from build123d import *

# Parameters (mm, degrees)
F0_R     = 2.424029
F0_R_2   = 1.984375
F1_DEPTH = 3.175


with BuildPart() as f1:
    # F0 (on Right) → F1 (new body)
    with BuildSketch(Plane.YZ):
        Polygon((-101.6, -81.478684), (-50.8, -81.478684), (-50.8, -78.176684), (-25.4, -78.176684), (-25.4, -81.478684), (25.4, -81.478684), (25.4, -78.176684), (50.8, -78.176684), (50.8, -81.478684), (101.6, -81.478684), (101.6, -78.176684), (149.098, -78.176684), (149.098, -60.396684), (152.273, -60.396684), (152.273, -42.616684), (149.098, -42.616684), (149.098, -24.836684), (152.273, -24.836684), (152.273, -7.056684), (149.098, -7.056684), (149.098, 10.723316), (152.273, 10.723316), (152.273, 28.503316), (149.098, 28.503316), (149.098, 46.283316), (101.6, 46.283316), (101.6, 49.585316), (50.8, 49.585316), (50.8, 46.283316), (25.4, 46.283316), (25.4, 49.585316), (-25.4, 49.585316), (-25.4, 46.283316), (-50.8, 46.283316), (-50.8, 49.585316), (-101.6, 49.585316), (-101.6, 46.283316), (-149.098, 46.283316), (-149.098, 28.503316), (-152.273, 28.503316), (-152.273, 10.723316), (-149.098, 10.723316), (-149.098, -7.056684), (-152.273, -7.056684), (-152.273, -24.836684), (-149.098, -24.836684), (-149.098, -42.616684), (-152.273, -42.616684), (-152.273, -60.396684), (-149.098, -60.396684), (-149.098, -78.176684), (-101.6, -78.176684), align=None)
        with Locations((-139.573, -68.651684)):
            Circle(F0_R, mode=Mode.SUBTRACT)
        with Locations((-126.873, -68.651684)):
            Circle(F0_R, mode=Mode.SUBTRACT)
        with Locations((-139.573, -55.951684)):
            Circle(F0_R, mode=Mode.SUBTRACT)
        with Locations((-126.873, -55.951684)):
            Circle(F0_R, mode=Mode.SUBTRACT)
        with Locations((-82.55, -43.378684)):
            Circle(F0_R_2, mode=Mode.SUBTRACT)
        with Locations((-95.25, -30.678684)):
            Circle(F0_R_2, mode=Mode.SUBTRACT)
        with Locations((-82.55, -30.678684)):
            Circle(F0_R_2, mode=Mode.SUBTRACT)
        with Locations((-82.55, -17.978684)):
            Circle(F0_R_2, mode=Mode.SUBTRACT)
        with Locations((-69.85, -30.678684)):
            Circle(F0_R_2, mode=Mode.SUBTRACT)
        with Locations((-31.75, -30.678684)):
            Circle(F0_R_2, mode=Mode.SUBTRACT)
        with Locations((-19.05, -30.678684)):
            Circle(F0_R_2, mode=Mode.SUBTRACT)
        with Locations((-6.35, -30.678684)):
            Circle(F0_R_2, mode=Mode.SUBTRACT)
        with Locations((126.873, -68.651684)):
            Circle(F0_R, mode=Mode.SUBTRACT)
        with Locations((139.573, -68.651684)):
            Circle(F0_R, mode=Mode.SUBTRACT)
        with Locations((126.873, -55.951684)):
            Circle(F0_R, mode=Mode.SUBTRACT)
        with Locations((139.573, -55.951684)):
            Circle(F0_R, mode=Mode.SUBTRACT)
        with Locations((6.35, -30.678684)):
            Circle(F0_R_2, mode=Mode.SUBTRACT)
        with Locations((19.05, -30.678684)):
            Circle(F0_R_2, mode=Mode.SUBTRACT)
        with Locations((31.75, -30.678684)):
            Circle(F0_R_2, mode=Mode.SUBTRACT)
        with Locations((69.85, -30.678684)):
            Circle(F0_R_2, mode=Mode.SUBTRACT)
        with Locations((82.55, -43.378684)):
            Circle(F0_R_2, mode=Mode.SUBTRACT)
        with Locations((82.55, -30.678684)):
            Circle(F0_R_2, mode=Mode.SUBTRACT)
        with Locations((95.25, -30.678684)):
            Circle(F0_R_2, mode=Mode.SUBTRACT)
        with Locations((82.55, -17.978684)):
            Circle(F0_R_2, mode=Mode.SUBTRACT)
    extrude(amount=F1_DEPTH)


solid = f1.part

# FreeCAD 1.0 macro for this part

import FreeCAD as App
import Part
import Sketcher

V = App.Vector
Q = App.Units.Quantity

doc = App.newDocument("Part")
body = doc.addObject("PartDesign::Body", "Body")

sketch1 = body.newObject("Sketcher::SketchObject", "Sketch")
sketch1.AttachmentSupport = (doc.getObject("YZ_Plane"), [""])
sketch1.MapMode = "FlatFace"
sketch1.addGeometry([
    Part.LineSegment(V(-101.6, -81.5, 0), V(-50.8, -81.5, 0)),
    Part.LineSegment(V(-50.8, -81.5, 0), V(-50.8, -78.2, 0)),
    Part.LineSegment(V(-50.8, -78.2, 0), V(-25.4, -78.2, 0)),
    Part.LineSegment(V(-25.4, -78.2, 0), V(-25.4, -81.5, 0)),
    Part.LineSegment(V(-25.4, -81.5, 0), V(25.4, -81.5, 0)),
    Part.LineSegment(V(25.4, -81.5, 0), V(25.4, -78.2, 0)),
    Part.LineSegment(V(25.4, -78.2, 0), V(50.8, -78.2, 0)),
    Part.LineSegment(V(50.8, -78.2, 0), V(50.8, -81.5, 0)),
    Part.LineSegment(V(50.8, -81.5, 0), V(101.6, -81.5, 0)),
    Part.LineSegment(V(101.6, -81.5, 0), V(101.6, -78.2, 0)),
    Part.LineSegment(V(101.6, -78.2, 0), V(149.1, -78.2, 0)),
    Part.LineSegment(V(149.1, -78.2, 0), V(149.1, -60.4, 0)),
    Part.LineSegment(V(149.1, -60.4, 0), V(152.3, -60.4, 0)),
    Part.LineSegment(V(152.3, -60.4, 0), V(152.3, -42.6, 0)),
    Part.LineSegment(V(152.3, -42.6, 0), V(149.1, -42.6, 0)),
    Part.LineSegment(V(149.1, -42.6, 0), V(149.1, -24.8, 0)),
    Part.LineSegment(V(149.1, -24.8, 0), V(152.3, -24.8, 0)),
    Part.LineSegment(V(152.3, -24.8, 0), V(152.3, -7.1, 0)),
    Part.LineSegment(V(152.3, -7.1, 0), V(149.1, -7.1, 0)),
    Part.LineSegment(V(149.1, -7.1, 0), V(149.1, 10.7, 0)),
    Part.LineSegment(V(149.1, 10.7, 0), V(152.3, 10.7, 0)),
    Part.LineSegment(V(152.3, 10.7, 0), V(152.3, 28.5, 0)),
    Part.LineSegment(V(152.3, 28.5, 0), V(149.1, 28.5, 0)),
    Part.LineSegment(V(149.1, 28.5, 0), V(149.1, 46.3, 0)),
    Part.LineSegment(V(149.1, 46.3, 0), V(101.6, 46.3, 0)),
    Part.LineSegment(V(101.6, 46.3, 0), V(101.6, 49.6, 0)),
    Part.LineSegment(V(101.6, 49.6, 0), V(50.8, 49.6, 0)),
    Part.LineSegment(V(50.8, 49.6, 0), V(50.8, 46.3, 0)),
    Part.LineSegment(V(50.8, 46.3, 0), V(25.4, 46.3, 0)),
    Part.LineSegment(V(25.4, 46.3, 0), V(25.4, 49.6, 0)),
    Part.LineSegment(V(25.4, 49.6, 0), V(-25.4, 49.6, 0)),
    Part.LineSegment(V(-25.4, 49.6, 0), V(-25.4, 46.3, 0)),
    Part.LineSegment(V(-25.4, 46.3, 0), V(-50.8, 46.3, 0)),
    Part.LineSegment(V(-50.8, 46.3, 0), V(-50.8, 49.6, 0)),
    Part.LineSegment(V(-50.8, 49.6, 0), V(-101.6, 49.6, 0)),
    Part.LineSegment(V(-101.6, 49.6, 0), V(-101.6, 46.3, 0)),
    Part.LineSegment(V(-101.6, 46.3, 0), V(-149.1, 46.3, 0)),
    Part.LineSegment(V(-149.1, 46.3, 0), V(-149.1, 28.5, 0)),
    Part.LineSegment(V(-149.1, 28.5, 0), V(-152.3, 28.5, 0)),
    Part.LineSegment(V(-152.3, 28.5, 0), V(-152.3, 10.7, 0)),
    Part.LineSegment(V(-152.3, 10.7, 0), V(-149.1, 10.7, 0)),
    Part.LineSegment(V(-149.1, 10.7, 0), V(-149.1, -7.1, 0)),
    Part.LineSegment(V(-149.1, -7.1, 0), V(-152.3, -7.1, 0)),
    Part.LineSegment(V(-152.3, -7.1, 0), V(-152.3, -24.8, 0)),
    Part.LineSegment(V(-152.3, -24.8, 0), V(-149.1, -24.8, 0)),
    Part.LineSegment(V(-149.1, -24.8, 0), V(-149.1, -42.6, 0)),
    Part.LineSegment(V(-149.1, -42.6, 0), V(-152.3, -42.6, 0)),
    Part.LineSegment(V(-152.3, -42.6, 0), V(-152.3, -60.4, 0)),
    Part.LineSegment(V(-152.3, -60.4, 0), V(-149.1, -60.4, 0)),
    Part.LineSegment(V(-149.1, -60.4, 0), V(-149.1, -78.2, 0)),
    Part.LineSegment(V(-149.1, -78.2, 0), V(-101.6, -78.2, 0)),
    Part.LineSegment(V(-101.6, -78.2, 0), V(-101.6, -81.5, 0)),
    Part.Circle(V(-139.6, -68.7, 0), V(0, 0, 1), 2.4),
    Part.Circle(V(-126.9, -68.7, 0), V(0, 0, 1), 2.4),
    Part.Circle(V(-139.6, -56, 0), V(0, 0, 1), 2.4),
    Part.Circle(V(-126.9, -56, 0), V(0, 0, 1), 2.4),
    Part.Circle(V(126.9, -68.7, 0), V(0, 0, 1), 2.4),
    Part.Circle(V(139.6, -68.7, 0), V(0, 0, 1), 2.4),
    Part.Circle(V(126.9, -56, 0), V(0, 0, 1), 2.4),
    Part.Circle(V(139.6, -56, 0), V(0, 0, 1), 2.4),
    Part.Circle(V(-82.5, -43.4, 0), V(0, 0, 1), 2),
    Part.Circle(V(-95.2, -30.7, 0), V(0, 0, 1), 2),
    Part.Circle(V(-82.5, -30.7, 0), V(0, 0, 1), 2),
    Part.Circle(V(-69.8, -30.7, 0), V(0, 0, 1), 2),
    Part.Circle(V(-31.8, -30.7, 0), V(0, 0, 1), 2),
    Part.Circle(V(-19.1, -30.7, 0), V(0, 0, 1), 2),
    Part.Circle(V(-6.3, -30.7, 0), V(0, 0, 1), 2),
    Part.Circle(V(-82.5, -18, 0), V(0, 0, 1), 2),
    Part.Circle(V(6.3, -30.7, 0), V(0, 0, 1), 2),
    Part.Circle(V(19.1, -30.7, 0), V(0, 0, 1), 2),
    Part.Circle(V(31.8, -30.7, 0), V(0, 0, 1), 2),
    Part.Circle(V(69.8, -30.7, 0), V(0, 0, 1), 2),
    Part.Circle(V(82.5, -43.4, 0), V(0, 0, 1), 2),
    Part.Circle(V(82.5, -30.7, 0), V(0, 0, 1), 2),
    Part.Circle(V(95.2, -30.7, 0), V(0, 0, 1), 2),
    Part.Circle(V(82.5, -18, 0), V(0, 0, 1), 2),
], False)
sketch1.addConstraint([
    Sketcher.Constraint("Coincident", 0, 2, 1, 1),
    Sketcher.Constraint("Coincident", 1, 2, 2, 1),
    Sketcher.Constraint("Coincident", 2, 2, 3, 1),
    Sketcher.Constraint("Coincident", 3, 2, 4, 1),
    Sketcher.Constraint("Coincident", 4, 2, 5, 1),
    Sketcher.Constraint("Coincident", 5, 2, 6, 1),
    Sketcher.Constraint("Coincident", 6, 2, 7, 1),
    Sketcher.Constraint("Coincident", 7, 2, 8, 1),
    Sketcher.Constraint("Coincident", 8, 2, 9, 1),
    Sketcher.Constraint("Coincident", 9, 2, 10, 1),
    Sketcher.Constraint("Coincident", 10, 2, 11, 1),
    Sketcher.Constraint("Coincident", 11, 2, 12, 1),
    Sketcher.Constraint("Coincident", 12, 2, 13, 1),
    Sketcher.Constraint("Coincident", 13, 2, 14, 1),
    Sketcher.Constraint("Coincident", 14, 2, 15, 1),
    Sketcher.Constraint("Coincident", 15, 2, 16, 1),
    Sketcher.Constraint("Coincident", 16, 2, 17, 1),
    Sketcher.Constraint("Coincident", 17, 2, 18, 1),
    Sketcher.Constraint("Coincident", 18, 2, 19, 1),
    Sketcher.Constraint("Coincident", 19, 2, 20, 1),
    Sketcher.Constraint("Coincident", 20, 2, 21, 1),
    Sketcher.Constraint("Coincident", 21, 2, 22, 1),
    Sketcher.Constraint("Coincident", 22, 2, 23, 1),
    Sketcher.Constraint("Coincident", 23, 2, 24, 1),
    Sketcher.Constraint("Coincident", 24, 2, 25, 1),
    Sketcher.Constraint("Coincident", 25, 2, 26, 1),
    Sketcher.Constraint("Coincident", 26, 2, 27, 1),
    Sketcher.Constraint("Coincident", 27, 2, 28, 1),
    Sketcher.Constraint("Coincident", 28, 2, 29, 1),
    Sketcher.Constraint("Coincident", 29, 2, 30, 1),
    Sketcher.Constraint("Coincident", 30, 2, 31, 1),
    Sketcher.Constraint("Coincident", 31, 2, 32, 1),
    Sketcher.Constraint("Coincident", 32, 2, 33, 1),
    Sketcher.Constraint("Coincident", 33, 2, 34, 1),
    Sketcher.Constraint("Coincident", 34, 2, 35, 1),
    Sketcher.Constraint("Coincident", 35, 2, 36, 1),
    Sketcher.Constraint("Coincident", 36, 2, 37, 1),
    Sketcher.Constraint("Coincident", 37, 2, 38, 1),
    Sketcher.Constraint("Coincident", 38, 2, 39, 1),
    Sketcher.Constraint("Coincident", 39, 2, 40, 1),
    Sketcher.Constraint("Coincident", 40, 2, 41, 1),
    Sketcher.Constraint("Coincident", 41, 2, 42, 1),
    Sketcher.Constraint("Coincident", 42, 2, 43, 1),
    Sketcher.Constraint("Coincident", 43, 2, 44, 1),
    Sketcher.Constraint("Coincident", 44, 2, 45, 1),
    Sketcher.Constraint("Coincident", 45, 2, 46, 1),
    Sketcher.Constraint("Coincident", 46, 2, 47, 1),
    Sketcher.Constraint("Coincident", 47, 2, 48, 1),
    Sketcher.Constraint("Coincident", 48, 2, 49, 1),
    Sketcher.Constraint("Coincident", 49, 2, 50, 1),
    Sketcher.Constraint("Coincident", 50, 2, 51, 1),
    Sketcher.Constraint("Coincident", 51, 2, 0, 1),
    Sketcher.Constraint("Horizontal", 0),
    Sketcher.Constraint("Vertical", 1),
    Sketcher.Constraint("Horizontal", 2),
    Sketcher.Constraint("Vertical", 3),
    Sketcher.Constraint("Horizontal", 4),
    Sketcher.Constraint("Vertical", 5),
    Sketcher.Constraint("Horizontal", 6),
    Sketcher.Constraint("Vertical", 7),
    Sketcher.Constraint("Horizontal", 8),
    Sketcher.Constraint("Vertical", 9),
    Sketcher.Constraint("Horizontal", 10),
    Sketcher.Constraint("Vertical", 11),
    Sketcher.Constraint("Horizontal", 12),
    Sketcher.Constraint("Vertical", 13),
    Sketcher.Constraint("Horizontal", 14),
    Sketcher.Constraint("Vertical", 15),
    Sketcher.Constraint("Horizontal", 16),
    Sketcher.Constraint("Vertical", 17),
    Sketcher.Constraint("Horizontal", 18),
    Sketcher.Constraint("Vertical", 19),
    Sketcher.Constraint("Horizontal", 20),
    Sketcher.Constraint("Vertical", 21),
    Sketcher.Constraint("Horizontal", 22),
    Sketcher.Constraint("Vertical", 23),
    Sketcher.Constraint("Horizontal", 24),
    Sketcher.Constraint("Vertical", 25),
    Sketcher.Constraint("Horizontal", 26),
    Sketcher.Constraint("Vertical", 27),
    Sketcher.Constraint("Horizontal", 28),
    Sketcher.Constraint("Vertical", 29),
    Sketcher.Constraint("Horizontal", 30),
    Sketcher.Constraint("Vertical", 31),
    Sketcher.Constraint("Horizontal", 32),
    Sketcher.Constraint("Vertical", 33),
    Sketcher.Constraint("Horizontal", 34),
    Sketcher.Constraint("Vertical", 35),
    Sketcher.Constraint("Horizontal", 36),
    Sketcher.Constraint("Vertical", 37),
    Sketcher.Constraint("Horizontal", 38),
    Sketcher.Constraint("Vertical", 39),
    Sketcher.Constraint("Horizontal", 40),
    Sketcher.Constraint("Vertical", 41),
    Sketcher.Constraint("Horizontal", 42),
    Sketcher.Constraint("Vertical", 43),
    Sketcher.Constraint("Horizontal", 44),
    Sketcher.Constraint("Vertical", 45),
    Sketcher.Constraint("Horizontal", 46),
    Sketcher.Constraint("Vertical", 47),
    Sketcher.Constraint("Horizontal", 48),
    Sketcher.Constraint("Vertical", 49),
    Sketcher.Constraint("Horizontal", 50),
    Sketcher.Constraint("Vertical", 51),
    Sketcher.Constraint("Equal", 52, 53),
    Sketcher.Constraint("Equal", 53, 54),
    Sketcher.Constraint("Equal", 54, 55),
    Sketcher.Constraint("Equal", 55, 56),
    Sketcher.Constraint("Equal", 56, 57),
    Sketcher.Constraint("Equal", 57, 58),
    Sketcher.Constraint("Equal", 58, 59),
    Sketcher.Constraint("Equal", 60, 61),
    Sketcher.Constraint("Equal", 61, 62),
    Sketcher.Constraint("Equal", 62, 63),
    Sketcher.Constraint("Equal", 63, 64),
    Sketcher.Constraint("Equal", 64, 65),
    Sketcher.Constraint("Equal", 65, 66),
    Sketcher.Constraint("Equal", 66, 67),
    Sketcher.Constraint("Equal", 67, 68),
    Sketcher.Constraint("Equal", 68, 69),
    Sketcher.Constraint("Equal", 69, 70),
    Sketcher.Constraint("Equal", 70, 71),
    Sketcher.Constraint("Equal", 71, 72),
    Sketcher.Constraint("Equal", 72, 73),
    Sketcher.Constraint("Equal", 73, 74),
    Sketcher.Constraint("Equal", 74, 75),
    Sketcher.Constraint("Symmetric", 53, 3, 56, 3, -2),
    Sketcher.Constraint("Symmetric", 52, 3, 57, 3, -2),
    Sketcher.Constraint("Symmetric", 55, 3, 58, 3, -2),
    Sketcher.Constraint("Symmetric", 54, 3, 59, 3, -2),
    Sketcher.Constraint("Symmetric", 66, 3, 68, 3, -2),
    Sketcher.Constraint("Symmetric", 65, 3, 69, 3, -2),
    Sketcher.Constraint("Symmetric", 64, 3, 70, 3, -2),
    Sketcher.Constraint("Symmetric", 63, 3, 71, 3, -2),
    Sketcher.Constraint("Symmetric", 60, 3, 72, 3, -2),
    Sketcher.Constraint("Symmetric", 62, 3, 73, 3, -2),
    Sketcher.Constraint("Symmetric", 61, 3, 74, 3, -2),
    Sketcher.Constraint("Symmetric", 67, 3, 75, 3, -2),
    Sketcher.Constraint("Symmetric", 2, 2, 5, 2, -2),
    Sketcher.Constraint("Symmetric", 0, 2, 7, 2, -2),
    Sketcher.Constraint("Symmetric", 28, 2, 31, 2, -2),
    Sketcher.Constraint("Symmetric", 26, 2, 33, 2, -2),
    Sketcher.Constraint("Symmetric", 24, 2, 35, 2, -2),
    Sketcher.Constraint("Symmetric", 22, 2, 37, 2, -2),
    Sketcher.Constraint("Symmetric", 20, 2, 39, 2, -2),
    Sketcher.Constraint("Symmetric", 18, 2, 41, 2, -2),
    Sketcher.Constraint("Symmetric", 16, 2, 43, 2, -2),
    Sketcher.Constraint("Symmetric", 14, 2, 45, 2, -2),
    Sketcher.Constraint("Symmetric", 12, 2, 47, 2, -2),
    Sketcher.Constraint("Symmetric", 10, 2, 49, 2, -2),
    Sketcher.Constraint("Horizontal", 52, 3, 53, 3),
    Sketcher.Constraint("Horizontal", 54, 3, 55, 3),
    Sketcher.Constraint("Horizontal", 61, 3, 62, 3),
    Sketcher.Constraint("Horizontal", 62, 3, 63, 3),
    Sketcher.Constraint("Horizontal", 63, 3, 64, 3),
    Sketcher.Constraint("Horizontal", 64, 3, 65, 3),
    Sketcher.Constraint("Horizontal", 65, 3, 66, 3),
    Sketcher.Constraint("Horizontal", 0, 2, 3, 2),
    Sketcher.Constraint("Horizontal", 6, 2, 9, 2),
    Sketcher.Constraint("Horizontal", 24, 2, 27, 2),
    Sketcher.Constraint("Horizontal", 26, 2, 29, 2),
    Sketcher.Constraint("Vertical", 52, 3, 54, 3),
    Sketcher.Constraint("Vertical", 53, 3, 55, 3),
    Sketcher.Constraint("Vertical", 60, 3, 62, 3),
    Sketcher.Constraint("Vertical", 62, 3, 67, 3),
    Sketcher.Constraint("Vertical", 11, 2, 14, 2),
    Sketcher.Constraint("Vertical", 13, 2, 16, 2),
    Sketcher.Constraint("Vertical", 15, 2, 18, 2),
    Sketcher.Constraint("Vertical", 17, 2, 20, 2),
    Sketcher.Constraint("Vertical", 19, 2, 22, 2),
    Sketcher.Constraint("Vertical", 9, 2, 24, 2),
    Sketcher.Constraint("Vertical", 7, 2, 26, 2),
    Sketcher.Constraint("Vertical", 5, 2, 28, 2),
    Sketcher.Constraint("Vertical", 35, 2, 50, 2),
    Sketcher.Constraint("Equal", 0, 4),
    Sketcher.Constraint("Equal", 11, 13),
    Sketcher.Constraint("Equal", 13, 15),
    Sketcher.Constraint("Equal", 15, 17),
    Sketcher.Constraint("Equal", 17, 19),
    Sketcher.Constraint("Equal", 19, 21),
    Sketcher.Constraint("Equal", 21, 23),
    Sketcher.Constraint("Equal", 9, 25),
    Sketcher.Constraint("DistanceX", 0, 1, 0, 2, Q("2 in")),
    Sketcher.Constraint("DistanceX", 2, 1, 2, 2, Q("1 in")),
    Sketcher.Constraint("Diameter", 60, Q("0.15625 in")),
    Sketcher.Constraint("DistanceY", 11, 1, 11, 2, Q("0.7 in")),
    Sketcher.Constraint("DistanceX", 10, 1, 10, 2, Q("1.87 in")),
    Sketcher.Constraint("DistanceY", 1, 1, 1, 2, Q("0.13 in")),
    Sketcher.Constraint("DistanceX", 12, 1, 12, 2, Q("0.125 in")),
    Sketcher.Constraint("DistanceX", 60, 3, -1, 1, Q("3.25 in")),
    Sketcher.Constraint("DistanceX", 61, 3, -1, 1, Q("3.75 in")),
    Sketcher.Constraint("DistanceX", 63, 3, -1, 1, Q("2.75 in")),
    Sketcher.Constraint("DistanceX", 64, 3, -1, 1, Q("1.25 in")),
    Sketcher.Constraint("DistanceX", 65, 3, -1, 1, Q("0.75 in")),
    Sketcher.Constraint("DistanceX", 66, 3, -1, 1, Q("0.25 in")),
    Sketcher.Constraint("DistanceX", 52, 3, -1, 1, Q("5.495 in")),
    Sketcher.Constraint("DistanceX", 53, 3, -1, 1, Q("4.995 in")),
    Sketcher.Constraint("Diameter", 52, 4.848058),
    Sketcher.Constraint("DistanceY", 52, 3, -1, 1, 68.651684),
    Sketcher.Constraint("DistanceY", 54, 3, -1, 1, 55.951684),
    Sketcher.Constraint("DistanceY", 60, 3, -1, 1, 43.378684),
    Sketcher.Constraint("DistanceY", 61, 3, -1, 1, 30.678684),
    Sketcher.Constraint("DistanceY", 67, 3, -1, 1, 17.978684),
    Sketcher.Constraint("DistanceY", 0, 2, -1, 1, 81.478684),
])
pad1 = body.newObject("PartDesign::Pad", "Pad")
pad1.Profile = sketch1
pad1.Length = Q("0.125 in")

doc.recompute()
